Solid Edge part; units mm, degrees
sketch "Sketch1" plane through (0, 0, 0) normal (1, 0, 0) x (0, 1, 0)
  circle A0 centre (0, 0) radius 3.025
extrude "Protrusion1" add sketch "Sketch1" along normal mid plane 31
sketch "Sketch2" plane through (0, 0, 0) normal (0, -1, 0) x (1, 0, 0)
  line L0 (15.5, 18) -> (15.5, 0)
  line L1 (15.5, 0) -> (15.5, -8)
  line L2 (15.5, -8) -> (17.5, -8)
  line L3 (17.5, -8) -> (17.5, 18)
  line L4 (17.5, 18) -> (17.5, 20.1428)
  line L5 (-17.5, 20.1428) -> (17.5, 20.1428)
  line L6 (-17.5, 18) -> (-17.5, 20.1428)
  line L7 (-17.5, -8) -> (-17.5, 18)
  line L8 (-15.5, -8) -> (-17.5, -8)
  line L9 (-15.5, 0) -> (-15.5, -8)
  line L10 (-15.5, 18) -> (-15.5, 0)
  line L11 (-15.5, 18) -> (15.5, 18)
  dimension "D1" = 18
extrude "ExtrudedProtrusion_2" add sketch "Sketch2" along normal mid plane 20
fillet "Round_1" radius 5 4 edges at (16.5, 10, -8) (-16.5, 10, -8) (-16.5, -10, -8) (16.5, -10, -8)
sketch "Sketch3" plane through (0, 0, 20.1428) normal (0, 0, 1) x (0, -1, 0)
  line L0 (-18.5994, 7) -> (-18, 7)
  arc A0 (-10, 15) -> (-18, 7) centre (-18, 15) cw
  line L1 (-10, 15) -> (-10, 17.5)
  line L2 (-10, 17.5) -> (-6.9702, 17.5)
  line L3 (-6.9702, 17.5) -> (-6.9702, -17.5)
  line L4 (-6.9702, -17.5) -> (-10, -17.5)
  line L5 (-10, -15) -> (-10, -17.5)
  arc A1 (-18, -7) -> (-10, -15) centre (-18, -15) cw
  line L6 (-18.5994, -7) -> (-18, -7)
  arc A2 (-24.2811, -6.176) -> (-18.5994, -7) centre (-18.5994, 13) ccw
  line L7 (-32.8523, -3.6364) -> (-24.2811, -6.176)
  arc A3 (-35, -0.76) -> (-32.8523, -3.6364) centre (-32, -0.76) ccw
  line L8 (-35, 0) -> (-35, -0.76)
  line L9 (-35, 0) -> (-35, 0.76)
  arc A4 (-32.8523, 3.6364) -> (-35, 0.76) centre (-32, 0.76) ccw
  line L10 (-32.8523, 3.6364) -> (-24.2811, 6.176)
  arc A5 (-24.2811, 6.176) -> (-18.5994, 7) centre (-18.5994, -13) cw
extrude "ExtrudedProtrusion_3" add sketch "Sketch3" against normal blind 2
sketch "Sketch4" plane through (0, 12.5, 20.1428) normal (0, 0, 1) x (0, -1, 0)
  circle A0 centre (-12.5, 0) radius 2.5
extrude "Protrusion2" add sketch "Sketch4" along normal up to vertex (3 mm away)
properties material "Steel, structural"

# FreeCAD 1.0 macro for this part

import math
import FreeCAD as App
import Part
import Sketcher
Q = App.Units.Quantity


def edges_at(feature, points):
    """Names of the edges that pass closest to the given points."""
    edges = feature.Shape.Edges
    near = lambda p: min(range(len(edges)), key=lambda i: edges[i].distToShape(Part.Vertex(*p))[0])
    return sorted({f"Edge{near(p) + 1}" for p in points})


def add_polygon(sketch, points):
    """Adds a closed chain of lines whose ends are joined by coincident constraints."""
    first, n = sketch.GeometryCount, len(points)
    for a, b in zip(points, points[1:] + points[:1]):
        sketch.addGeometry(Part.LineSegment(App.Vector(*a, 0), App.Vector(*b, 0)), False)
    for i in range(n):
        sketch.addConstraint(Sketcher.Constraint("Coincident", first + i, 2, first + (i + 1) % n, 1))

doc = App.newDocument("Part")
body = doc.addObject("PartDesign::Body", "Body")

sketch1 = body.newObject("Sketcher::SketchObject", "Sketch")
sketch1.AttachmentSupport = (doc.getObject("YZ_Plane"), [""])
sketch1.MapMode = "FlatFace"
sketch1.addGeometry(Part.Circle(App.Vector(0, 0, 0), App.Vector(0, 0, 1), 3), False)
sketch1.addConstraint([
    Sketcher.Constraint("Coincident", 0, 3, -1, 1),
    Sketcher.Constraint("Diameter", 0, Q("6.05 mm")),
])
pad1 = body.newObject("PartDesign::Pad", "Pad")
pad1.Profile = sketch1
pad1.Length = 31
pad1.Midplane = True

sketch2 = body.newObject("Sketcher::SketchObject", "Sketch001")
sketch2.AttachmentSupport = (doc.getObject("XZ_Plane"), [""])
sketch2.MapMode = "FlatFace"
add_polygon(sketch2, [(-15.5, 18), (15.5, 18), (15.5, -8), (17.5, -8), (17.5, 20.1), (-17.5, 20.1), (-17.5, -8), (-15.5, -8)])
sketch2.addConstraint([
    Sketcher.Constraint("Horizontal", 0),
    Sketcher.Constraint("Vertical", 1),
    Sketcher.Constraint("Horizontal", 2),
    Sketcher.Constraint("Vertical", 3),
    Sketcher.Constraint("Horizontal", 4),
    Sketcher.Constraint("Vertical", 5),
    Sketcher.Constraint("Horizontal", 6),
    Sketcher.Constraint("Vertical", 7),
    Sketcher.Constraint("Symmetric", 2, 2, 5, 2, -2),
    Sketcher.Constraint("Equal", 2, 6),
    Sketcher.Constraint("DistanceX", -1, 1, 0, 2, Q("15.5 mm")),
    Sketcher.Constraint("DistanceX", 2, 1, 2, 2, Q("2 mm")),
    Sketcher.Constraint("DistanceY", 1, 2, 1, 1, Q("26 mm")),
    Sketcher.Constraint("DistanceY", -1, 1, 0, 2, Q("18 mm")),
    Sketcher.Constraint("DistanceY", 3, 1, 3, 2, Q("28.1428 mm")),
])
pad2 = body.newObject("PartDesign::Pad", "Pad001")
pad2.Profile = sketch2
pad2.Length = 20
pad2.Midplane = True
doc.recompute()

fillet = body.newObject("PartDesign::Fillet", "Fillet")
fillet.Base = (pad2, edges_at(pad2, [
    (16.5, 10, -8),
    (-16.5, 10, -8),
    (-16.5, -10, -8),
    (16.5, -10, -8),
]))
fillet.Radius = 5

sketch3 = body.newObject("Sketcher::SketchObject", "Sketch002")
sketch3.AttachmentSupport = (doc.getObject("XY_Plane"), [""])
sketch3.MapMode = "FlatFace"
sketch3.AttachmentOffset = App.Placement(App.Vector(0, 0, 20.1428), App.Rotation())
sketch3.addGeometry([
    Part.LineSegment(App.Vector(7, 18, 0), App.Vector(7, 18.6, 0)),
    Part.ArcOfCircle(Part.Circle(App.Vector(-13, 18.6, 0), App.Vector(0, 0, 1), 20), math.radians(0), math.radians(16.5)),
    Part.LineSegment(App.Vector(6.2, 24.3, 0), App.Vector(3.6, 32.9, 0)),
    Part.ArcOfCircle(Part.Circle(App.Vector(0.8, 32, 0), App.Vector(0, 0, 1), 3), math.radians(17), math.radians(90)),
    Part.LineSegment(App.Vector(0.8, 35, 0), App.Vector(-0.8, 35, 0)),
    Part.ArcOfCircle(Part.Circle(App.Vector(-0.8, 32, 0), App.Vector(0, 0, 1), 3), math.radians(90), math.radians(163)),
    Part.LineSegment(App.Vector(-3.6, 32.9, 0), App.Vector(-6.2, 24.3, 0)),
    Part.ArcOfCircle(Part.Circle(App.Vector(13, 18.6, 0), App.Vector(0, 0, 1), 20), math.radians(163.5), math.radians(180)),
    Part.LineSegment(App.Vector(-7, 18.6, 0), App.Vector(-7, 18, 0)),
    Part.ArcOfCircle(Part.Circle(App.Vector(-15, 18, 0), App.Vector(0, 0, 1), 8), math.radians(-90), math.radians(0)),
    Part.LineSegment(App.Vector(-15, 10, 0), App.Vector(-17.5, 10, 0)),
    Part.LineSegment(App.Vector(-17.5, 10, 0), App.Vector(-17.5, 7, 0)),
    Part.LineSegment(App.Vector(-17.5, 7, 0), App.Vector(17.5, 7, 0)),
    Part.LineSegment(App.Vector(17.5, 7, 0), App.Vector(17.5, 10, 0)),
    Part.LineSegment(App.Vector(17.5, 10, 0), App.Vector(15, 10, 0)),
    Part.ArcOfCircle(Part.Circle(App.Vector(15, 18, 0), App.Vector(0, 0, 1), 8), math.radians(180), math.radians(270)),
], False)
sketch3.addConstraint([
    Sketcher.Constraint("Tangent", 0, 2, 1, 1),
    Sketcher.Constraint("Tangent", 1, 2, 2, 1),
    Sketcher.Constraint("Tangent", 2, 2, 3, 1),
    Sketcher.Constraint("Tangent", 3, 2, 4, 1),
    Sketcher.Constraint("Tangent", 4, 2, 5, 1),
    Sketcher.Constraint("Tangent", 5, 2, 6, 1),
    Sketcher.Constraint("Tangent", 6, 2, 7, 1),
    Sketcher.Constraint("Tangent", 7, 2, 8, 1),
    Sketcher.Constraint("Tangent", 8, 2, 9, 2),
    Sketcher.Constraint("Tangent", 9, 1, 10, 1),
    Sketcher.Constraint("Coincident", 10, 2, 11, 1),
    Sketcher.Constraint("Coincident", 11, 2, 12, 1),
    Sketcher.Constraint("Coincident", 12, 2, 13, 1),
    Sketcher.Constraint("Coincident", 13, 2, 14, 1),
    Sketcher.Constraint("Tangent", 14, 2, 15, 2),
    Sketcher.Constraint("Tangent", 15, 1, 0, 1),
    Sketcher.Constraint("Vertical", 0),
    Sketcher.Constraint("Horizontal", 4),
    Sketcher.Constraint("Vertical", 8),
    Sketcher.Constraint("Horizontal", 10),
    Sketcher.Constraint("Vertical", 11),
    Sketcher.Constraint("Horizontal", 12),
    Sketcher.Constraint("Vertical", 13),
    Sketcher.Constraint("Horizontal", 14),
    Sketcher.Constraint("Equal", 3, 5),
    Sketcher.Constraint("Equal", 1, 7),
    Sketcher.Constraint("Equal", 9, 15),
    Sketcher.Constraint("Symmetric", 1, 3, 7, 3, -2),
    Sketcher.Constraint("Symmetric", 10, 2, 13, 2, -2),
    Sketcher.Constraint("Horizontal", 2, 2, 5, 2),
    Sketcher.Constraint("Radius", 1, Q("20 mm")),
    Sketcher.Constraint("Radius", 3, Q("3 mm")),
    Sketcher.Constraint("Radius", 9, Q("8 mm")),
    Sketcher.Constraint("DistanceX", 12, 1, 12, 2, Q("35 mm")),
    Sketcher.Constraint("DistanceX", 10, 2, 10, 1, Q("2.5 mm")),
    Sketcher.Constraint("DistanceY", -1, 1, 3, 3, Q("32 mm")),
    Sketcher.Constraint("DistanceY", -1, 1, 9, 3, Q("18 mm")),
    Sketcher.Constraint("DistanceX", 4, 2, 4, 1, Q("1.52 mm")),
    Sketcher.Constraint("DistanceY", 0, 1, 0, 2, Q("0.5994 mm")),
    Sketcher.Constraint("DistanceY", 11, 2, 11, 1, Q("3.0298 mm")),
])
pad3 = body.newObject("PartDesign::Pad", "Pad002")
pad3.Profile = sketch3
pad3.Length = 2
pad3.Reversed = True

sketch4 = body.newObject("Sketcher::SketchObject", "Sketch003")
sketch4.AttachmentSupport = (doc.getObject("XY_Plane"), [""])
sketch4.MapMode = "FlatFace"
sketch4.AttachmentOffset = App.Placement(App.Vector(0, 0, 20.1428), App.Rotation())
sketch4.addGeometry(Part.Circle(App.Vector(0, 25, 0), App.Vector(0, 0, 1), 2.5), False)
sketch4.addConstraint([
    Sketcher.Constraint("PointOnObject", 0, 3, -2),
    Sketcher.Constraint("Diameter", 0, Q("5 mm")),
    Sketcher.Constraint("DistanceY", -1, 1, 0, 3, Q("25 mm")),
])
pad4 = body.newObject("PartDesign::Pad", "Pad003")
pad4.Profile = sketch4
pad4.Length = 3

doc.recompute()
